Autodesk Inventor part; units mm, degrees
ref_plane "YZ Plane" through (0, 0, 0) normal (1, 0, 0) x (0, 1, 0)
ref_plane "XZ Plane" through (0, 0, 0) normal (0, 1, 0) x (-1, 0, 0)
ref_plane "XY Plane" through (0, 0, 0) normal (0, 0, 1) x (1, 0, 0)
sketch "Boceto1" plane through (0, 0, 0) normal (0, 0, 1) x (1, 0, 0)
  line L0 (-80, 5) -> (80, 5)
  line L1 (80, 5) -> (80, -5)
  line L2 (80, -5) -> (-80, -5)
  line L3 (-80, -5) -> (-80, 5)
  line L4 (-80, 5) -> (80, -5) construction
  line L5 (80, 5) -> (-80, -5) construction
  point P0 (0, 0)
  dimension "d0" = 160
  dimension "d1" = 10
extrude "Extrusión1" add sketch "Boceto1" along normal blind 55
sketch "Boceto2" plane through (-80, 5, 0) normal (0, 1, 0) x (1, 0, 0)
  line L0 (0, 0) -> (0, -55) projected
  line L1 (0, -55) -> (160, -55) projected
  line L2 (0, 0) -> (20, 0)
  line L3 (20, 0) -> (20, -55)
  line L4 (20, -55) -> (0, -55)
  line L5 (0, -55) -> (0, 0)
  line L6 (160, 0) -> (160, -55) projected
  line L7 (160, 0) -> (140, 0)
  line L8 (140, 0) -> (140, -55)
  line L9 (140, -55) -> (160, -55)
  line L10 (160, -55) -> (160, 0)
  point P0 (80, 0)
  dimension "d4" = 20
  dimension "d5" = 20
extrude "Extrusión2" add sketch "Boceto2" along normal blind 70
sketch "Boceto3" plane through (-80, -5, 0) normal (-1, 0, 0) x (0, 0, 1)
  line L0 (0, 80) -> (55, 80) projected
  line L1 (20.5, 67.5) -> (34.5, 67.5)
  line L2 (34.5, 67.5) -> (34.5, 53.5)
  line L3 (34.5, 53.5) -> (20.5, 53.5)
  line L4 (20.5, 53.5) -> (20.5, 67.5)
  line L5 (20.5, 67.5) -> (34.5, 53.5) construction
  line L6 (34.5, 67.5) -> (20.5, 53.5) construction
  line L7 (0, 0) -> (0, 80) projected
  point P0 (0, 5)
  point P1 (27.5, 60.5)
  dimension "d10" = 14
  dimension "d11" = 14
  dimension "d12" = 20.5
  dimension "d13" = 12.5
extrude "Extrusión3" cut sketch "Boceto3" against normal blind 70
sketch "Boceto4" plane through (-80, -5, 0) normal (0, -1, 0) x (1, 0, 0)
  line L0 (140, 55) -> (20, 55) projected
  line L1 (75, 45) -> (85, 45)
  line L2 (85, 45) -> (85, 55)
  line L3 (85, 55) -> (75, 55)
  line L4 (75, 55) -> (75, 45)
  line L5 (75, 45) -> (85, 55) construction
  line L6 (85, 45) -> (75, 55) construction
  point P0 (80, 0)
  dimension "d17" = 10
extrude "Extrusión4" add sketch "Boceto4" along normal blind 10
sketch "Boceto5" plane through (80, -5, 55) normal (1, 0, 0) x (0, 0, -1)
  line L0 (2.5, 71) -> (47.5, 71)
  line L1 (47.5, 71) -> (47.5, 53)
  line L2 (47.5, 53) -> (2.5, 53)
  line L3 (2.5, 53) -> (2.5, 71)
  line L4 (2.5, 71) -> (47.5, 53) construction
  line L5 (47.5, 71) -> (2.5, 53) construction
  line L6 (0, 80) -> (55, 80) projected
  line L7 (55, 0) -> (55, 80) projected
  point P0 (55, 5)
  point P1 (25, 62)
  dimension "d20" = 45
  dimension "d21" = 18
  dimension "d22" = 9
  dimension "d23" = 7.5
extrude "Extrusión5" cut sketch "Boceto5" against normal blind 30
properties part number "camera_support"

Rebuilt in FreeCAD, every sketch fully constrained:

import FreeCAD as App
import Part
import Sketcher
Q = App.Units.Quantity

doc = App.newDocument("Part")
params = doc.addObject("Spreadsheet::Sheet", "Params")
for row, (alias, value) in enumerate([
    ("sketch1_width", "160 mm"),
    ("sketch1_height", "10 mm"),
    ("pad1_length", "55 mm"),
    ("sketch2_width", "20 mm"),
    ("sketch2_height", "55 mm"),
    ("pad2_length", "70 mm"),
    ("sketch3_width", "14 mm"),
    ("pocket1_length", "70 mm"),
    ("sketch4_width", "10 mm"),
    ("pad3_length", "10 mm"),
    ("sketch5_width", "18 mm"),
    ("sketch5_height", "45 mm"),
    ("pocket2_length", "30 mm"),
], start=1):
    params.set(f"A{row}", alias)
    params.set(f"B{row}", "=" + value)
    params.setAlias(f"B{row}", alias)

body = doc.addObject("PartDesign::Body", "Body")

sketch1 = body.newObject("Sketcher::SketchObject", "Sketch")
sketch1.AttachmentSupport = (doc.getObject("XY_Plane"), [""])
sketch1.MapMode = "FlatFace"
sketch1.addGeometry(Part.LineSegment(App.Vector(80, 5, 0), App.Vector(-80, 5, 0)), False)
sketch1.addGeometry(Part.LineSegment(App.Vector(-80, 5, 0), App.Vector(-80, -5, 0)), False)
sketch1.addGeometry(Part.LineSegment(App.Vector(-80, -5, 0), App.Vector(80, -5, 0)), False)
sketch1.addGeometry(Part.LineSegment(App.Vector(80, -5, 0), App.Vector(80, 5, 0)), False)
sketch1.addConstraint(Sketcher.Constraint("Coincident", 0, 2, 1, 1))
sketch1.addConstraint(Sketcher.Constraint("Coincident", 1, 2, 2, 1))
sketch1.addConstraint(Sketcher.Constraint("Coincident", 2, 2, 3, 1))
sketch1.addConstraint(Sketcher.Constraint("Coincident", 3, 2, 0, 1))
sketch1.addConstraint(Sketcher.Constraint("Horizontal", 0))
sketch1.addConstraint(Sketcher.Constraint("Vertical", 1))
sketch1.addConstraint(Sketcher.Constraint("Horizontal", 2))
sketch1.addConstraint(Sketcher.Constraint("Vertical", 3))
sketch1.addConstraint(Sketcher.Constraint("Symmetric", 0, 2, 2, 2, -1, 1))
sketch1.addConstraint(Sketcher.Constraint("DistanceX", 0, 2, 0, 1, Q("160 mm")))
sketch1.addConstraint(Sketcher.Constraint("DistanceY", 1, 2, 1, 1, Q("10 mm")))
sketch1.setExpression("Constraints[9]", "Params.sketch1_width")
sketch1.setExpression("Constraints[10]", "Params.sketch1_height")
pad1 = body.newObject("PartDesign::Pad", "Pad")
pad1.Profile = sketch1
pad1.setExpression("Length", "Params.pad1_length")

sketch2 = body.newObject("Sketcher::SketchObject", "Sketch001")
sketch2.AttachmentSupport = (doc.getObject("XZ_Plane"), [""])
sketch2.MapMode = "FlatFace"
sketch2.AttachmentOffset = App.Placement(App.Vector(0, 0, -5), App.Rotation())
sketch2.addGeometry(Part.LineSegment(App.Vector(-60, 0, 0), App.Vector(-80, 0, 0)), False)
sketch2.addGeometry(Part.LineSegment(App.Vector(-80, 0, 0), App.Vector(-80, 55, 0)), False)
sketch2.addGeometry(Part.LineSegment(App.Vector(-80, 55, 0), App.Vector(-60, 55, 0)), False)
sketch2.addGeometry(Part.LineSegment(App.Vector(-60, 55, 0), App.Vector(-60, 0, 0)), False)
sketch2.addGeometry(Part.LineSegment(App.Vector(60, 0, 0), App.Vector(60, 55, 0)), False)
sketch2.addGeometry(Part.LineSegment(App.Vector(60, 55, 0), App.Vector(80, 55, 0)), False)
sketch2.addGeometry(Part.LineSegment(App.Vector(80, 55, 0), App.Vector(80, 0, 0)), False)
sketch2.addGeometry(Part.LineSegment(App.Vector(80, 0, 0), App.Vector(60, 0, 0)), False)
sketch2.addConstraint(Sketcher.Constraint("Coincident", 0, 2, 1, 1))
sketch2.addConstraint(Sketcher.Constraint("Coincident", 1, 2, 2, 1))
sketch2.addConstraint(Sketcher.Constraint("Coincident", 2, 2, 3, 1))
sketch2.addConstraint(Sketcher.Constraint("Coincident", 3, 2, 0, 1))
sketch2.addConstraint(Sketcher.Constraint("Coincident", 4, 2, 5, 1))
sketch2.addConstraint(Sketcher.Constraint("Coincident", 5, 2, 6, 1))
sketch2.addConstraint(Sketcher.Constraint("Coincident", 6, 2, 7, 1))
sketch2.addConstraint(Sketcher.Constraint("Coincident", 7, 2, 4, 1))
sketch2.addConstraint(Sketcher.Constraint("Horizontal", 0))
sketch2.addConstraint(Sketcher.Constraint("Vertical", 1))
sketch2.addConstraint(Sketcher.Constraint("Horizontal", 2))
sketch2.addConstraint(Sketcher.Constraint("Vertical", 3))
sketch2.addConstraint(Sketcher.Constraint("Vertical", 4))
sketch2.addConstraint(Sketcher.Constraint("Horizontal", 5))
sketch2.addConstraint(Sketcher.Constraint("Vertical", 6))
sketch2.addConstraint(Sketcher.Constraint("Horizontal", 7))
sketch2.addConstraint(Sketcher.Constraint("Symmetric", 0, 2, 6, 2, -1, 1))
sketch2.addConstraint(Sketcher.Constraint("Symmetric", 2, 2, 4, 2, -2))
sketch2.addConstraint(Sketcher.Constraint("PointOnObject", 0, 2, -1))
sketch2.addConstraint(Sketcher.Constraint("DistanceX", 0, 2, 0, 1, Q("20 mm")))
sketch2.addConstraint(Sketcher.Constraint("DistanceY", 1, 1, 1, 2, Q("55 mm")))
sketch2.addConstraint(Sketcher.Constraint("DistanceX", 0, 2, -1, 1, Q("80 mm")))
sketch2.setExpression("Constraints[19]", "Params.sketch2_width")
sketch2.setExpression("Constraints[20]", "Params.sketch2_height")
pad2 = body.newObject("PartDesign::Pad", "Pad001")
pad2.Profile = sketch2
pad2.setExpression("Length", "Params.pad2_length")
pad2.Reversed = True

sketch3 = body.newObject("Sketcher::SketchObject", "Sketch002")
sketch3.AttachmentSupport = (doc.getObject("YZ_Plane"), [""])
sketch3.MapMode = "FlatFace"
sketch3.AttachmentOffset = App.Placement(App.Vector(0, 0, -80), App.Rotation())
sketch3.addGeometry(Part.LineSegment(App.Vector(62.5, 34.5, 0), App.Vector(62.5, 20.5, 0)), False)
sketch3.addGeometry(Part.LineSegment(App.Vector(62.5, 20.5, 0), App.Vector(48.5, 20.5, 0)), False)
sketch3.addGeometry(Part.LineSegment(App.Vector(48.5, 20.5, 0), App.Vector(48.5, 34.5, 0)), False)
sketch3.addGeometry(Part.LineSegment(App.Vector(48.5, 34.5, 0), App.Vector(62.5, 34.5, 0)), False)
sketch3.addConstraint(Sketcher.Constraint("Coincident", 0, 2, 1, 1))
sketch3.addConstraint(Sketcher.Constraint("Coincident", 1, 2, 2, 1))
sketch3.addConstraint(Sketcher.Constraint("Coincident", 2, 2, 3, 1))
sketch3.addConstraint(Sketcher.Constraint("Coincident", 3, 2, 0, 1))
sketch3.addConstraint(Sketcher.Constraint("Vertical", 0))
sketch3.addConstraint(Sketcher.Constraint("Horizontal", 1))
sketch3.addConstraint(Sketcher.Constraint("Vertical", 2))
sketch3.addConstraint(Sketcher.Constraint("Horizontal", 3))
sketch3.addConstraint(Sketcher.Constraint("Equal", 3, 0))
sketch3.addConstraint(Sketcher.Constraint("DistanceX", 1, 2, 1, 1, Q("14 mm")))
sketch3.addConstraint(Sketcher.Constraint("DistanceY", -1, 1, 0, 2, Q("20.5 mm")))
sketch3.addConstraint(Sketcher.Constraint("DistanceX", -1, 1, 0, 2, Q("62.5 mm")))
sketch3.setExpression("Constraints[9]", "Params.sketch3_width")
pocket1 = body.newObject("PartDesign::Pocket", "Pocket")
pocket1.Profile = sketch3
pocket1.setExpression("Length", "Params.pocket1_length")
pocket1.Reversed = True

sketch4 = body.newObject("Sketcher::SketchObject", "Sketch003")
sketch4.AttachmentSupport = (doc.getObject("XZ_Plane"), [""])
sketch4.MapMode = "FlatFace"
sketch4.AttachmentOffset = App.Placement(App.Vector(0, 0, 5), App.Rotation())
sketch4.addGeometry(Part.LineSegment(App.Vector(5, 45, 0), App.Vector(5, 55, 0)), False)
sketch4.addGeometry(Part.LineSegment(App.Vector(5, 55, 0), App.Vector(-5, 55, 0)), False)
sketch4.addGeometry(Part.LineSegment(App.Vector(-5, 55, 0), App.Vector(-5, 45, 0)), False)
sketch4.addGeometry(Part.LineSegment(App.Vector(-5, 45, 0), App.Vector(5, 45, 0)), False)
sketch4.addConstraint(Sketcher.Constraint("Coincident", 0, 2, 1, 1))
sketch4.addConstraint(Sketcher.Constraint("Coincident", 1, 2, 2, 1))
sketch4.addConstraint(Sketcher.Constraint("Coincident", 2, 2, 3, 1))
sketch4.addConstraint(Sketcher.Constraint("Coincident", 3, 2, 0, 1))
sketch4.addConstraint(Sketcher.Constraint("Vertical", 0))
sketch4.addConstraint(Sketcher.Constraint("Horizontal", 1))
sketch4.addConstraint(Sketcher.Constraint("Vertical", 2))
sketch4.addConstraint(Sketcher.Constraint("Horizontal", 3))
sketch4.addConstraint(Sketcher.Constraint("Equal", 3, 0))
sketch4.addConstraint(Sketcher.Constraint("DistanceX", 1, 2, 1, 1, Q("10 mm")))
sketch4.addConstraint(Sketcher.Constraint("DistanceX", -1, 1, 0, 2, Q("5 mm")))
sketch4.addConstraint(Sketcher.Constraint("DistanceY", -1, 1, 0, 2, Q("55 mm")))
sketch4.setExpression("Constraints[9]", "Params.sketch4_width")
pad3 = body.newObject("PartDesign::Pad", "Pad002")
pad3.Profile = sketch4
pad3.setExpression("Length", "Params.pad3_length")

sketch5 = body.newObject("Sketcher::SketchObject", "Sketch004")
sketch5.AttachmentSupport = (doc.getObject("YZ_Plane"), [""])
sketch5.MapMode = "FlatFace"
sketch5.AttachmentOffset = App.Placement(App.Vector(0, 0, 80), App.Rotation())
sketch5.addGeometry(Part.LineSegment(App.Vector(66, 7.5, 0), App.Vector(66, 52.5, 0)), False)
sketch5.addGeometry(Part.LineSegment(App.Vector(66, 52.5, 0), App.Vector(48, 52.5, 0)), False)
sketch5.addGeometry(Part.LineSegment(App.Vector(48, 52.5, 0), App.Vector(48, 7.5, 0)), False)
sketch5.addGeometry(Part.LineSegment(App.Vector(48, 7.5, 0), App.Vector(66, 7.5, 0)), False)
sketch5.addConstraint(Sketcher.Constraint("Coincident", 0, 2, 1, 1))
sketch5.addConstraint(Sketcher.Constraint("Coincident", 1, 2, 2, 1))
sketch5.addConstraint(Sketcher.Constraint("Coincident", 2, 2, 3, 1))
sketch5.addConstraint(Sketcher.Constraint("Coincident", 3, 2, 0, 1))
sketch5.addConstraint(Sketcher.Constraint("Vertical", 0))
sketch5.addConstraint(Sketcher.Constraint("Horizontal", 1))
sketch5.addConstraint(Sketcher.Constraint("Vertical", 2))
sketch5.addConstraint(Sketcher.Constraint("Horizontal", 3))
sketch5.addConstraint(Sketcher.Constraint("DistanceX", 1, 2, 1, 1, Q("18 mm")))
sketch5.addConstraint(Sketcher.Constraint("DistanceY", 0, 1, 0, 2, Q("45 mm")))
sketch5.addConstraint(Sketcher.Constraint("DistanceY", -1, 1, 2, 2, Q("7.5 mm")))
sketch5.addConstraint(Sketcher.Constraint("DistanceX", -1, 1, 0, 2, Q("66 mm")))
sketch5.setExpression("Constraints[8]", "Params.sketch5_width")
sketch5.setExpression("Constraints[9]", "Params.sketch5_height")
pocket2 = body.newObject("PartDesign::Pocket", "Pocket001")
pocket2.Profile = sketch5
pocket2.setExpression("Length", "Params.pocket2_length")

doc.recompute()
